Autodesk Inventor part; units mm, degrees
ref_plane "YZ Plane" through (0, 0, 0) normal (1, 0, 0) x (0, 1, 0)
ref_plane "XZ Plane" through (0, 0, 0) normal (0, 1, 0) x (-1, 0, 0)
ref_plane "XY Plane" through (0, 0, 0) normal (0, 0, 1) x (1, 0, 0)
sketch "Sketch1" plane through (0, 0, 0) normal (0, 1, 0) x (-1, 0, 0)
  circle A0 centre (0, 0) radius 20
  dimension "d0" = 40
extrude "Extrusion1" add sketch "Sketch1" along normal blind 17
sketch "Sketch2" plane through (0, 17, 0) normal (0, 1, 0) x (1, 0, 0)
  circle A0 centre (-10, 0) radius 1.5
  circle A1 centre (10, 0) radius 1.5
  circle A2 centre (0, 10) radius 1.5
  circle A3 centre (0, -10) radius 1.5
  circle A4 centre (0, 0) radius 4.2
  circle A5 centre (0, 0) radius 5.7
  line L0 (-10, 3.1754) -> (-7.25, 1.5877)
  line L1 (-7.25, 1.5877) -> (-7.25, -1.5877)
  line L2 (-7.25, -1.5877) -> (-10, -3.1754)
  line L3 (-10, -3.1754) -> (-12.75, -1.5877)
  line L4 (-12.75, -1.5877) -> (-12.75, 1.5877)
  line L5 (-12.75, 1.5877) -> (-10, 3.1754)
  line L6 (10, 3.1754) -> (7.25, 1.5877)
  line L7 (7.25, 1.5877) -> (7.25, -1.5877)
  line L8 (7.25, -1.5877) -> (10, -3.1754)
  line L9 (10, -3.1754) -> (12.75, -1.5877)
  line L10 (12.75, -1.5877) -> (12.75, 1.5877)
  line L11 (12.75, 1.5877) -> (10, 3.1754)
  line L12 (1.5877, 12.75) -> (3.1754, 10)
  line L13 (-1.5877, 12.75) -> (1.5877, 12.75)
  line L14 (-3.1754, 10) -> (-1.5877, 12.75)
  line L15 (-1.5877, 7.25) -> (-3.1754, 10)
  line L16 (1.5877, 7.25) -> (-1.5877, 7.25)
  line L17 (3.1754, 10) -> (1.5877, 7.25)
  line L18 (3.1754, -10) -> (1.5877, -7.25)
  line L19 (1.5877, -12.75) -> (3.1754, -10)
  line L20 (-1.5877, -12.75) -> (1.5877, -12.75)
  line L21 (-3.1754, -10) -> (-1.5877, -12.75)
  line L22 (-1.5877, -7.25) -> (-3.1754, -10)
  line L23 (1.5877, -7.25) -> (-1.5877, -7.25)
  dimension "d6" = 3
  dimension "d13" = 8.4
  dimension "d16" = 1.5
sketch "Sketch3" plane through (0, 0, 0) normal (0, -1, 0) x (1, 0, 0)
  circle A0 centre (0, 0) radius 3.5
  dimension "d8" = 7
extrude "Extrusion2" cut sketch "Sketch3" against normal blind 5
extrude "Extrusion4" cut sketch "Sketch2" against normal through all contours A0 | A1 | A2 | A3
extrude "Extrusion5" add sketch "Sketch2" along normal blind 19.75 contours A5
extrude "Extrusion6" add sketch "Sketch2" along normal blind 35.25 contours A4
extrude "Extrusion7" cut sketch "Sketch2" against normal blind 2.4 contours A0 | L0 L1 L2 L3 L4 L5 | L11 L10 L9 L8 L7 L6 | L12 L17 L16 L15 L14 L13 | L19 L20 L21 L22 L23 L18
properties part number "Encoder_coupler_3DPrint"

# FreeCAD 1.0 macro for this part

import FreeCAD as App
import Part
import Sketcher
Q = App.Units.Quantity

doc = App.newDocument("Part")
body = doc.addObject("PartDesign::Body", "Body")

# Sketch on XZ plane
sketch1 = doc.addObject("Sketcher::SketchObject", "Sketch")
body.addObject(sketch1)
sketch1.AttachmentSupport = (doc.XZ_Plane, [""])
sketch1.MapMode = "FlatFace"
sketch1.addGeometry(Part.Circle(App.Vector(0, 0, 0), App.Vector(0, 0, 1), 20), False)
sketch1.addConstraint([
    Sketcher.Constraint("Coincident", 0, 3, -1, 1),
    Sketcher.Constraint("Diameter", 0, Q("40 mm")),
])
pad1 = doc.addObject("PartDesign::Pad", "Pad")
body.addObject(pad1)
pad1.Profile = sketch1
pad1.Length = 17
pad1.Reversed = True

# Sketch on XZ plane
sketch2 = doc.addObject("Sketcher::SketchObject", "Sketch001")
body.addObject(sketch2)
sketch2.AttachmentSupport = (doc.XZ_Plane, [""])
sketch2.MapMode = "FlatFace"
sketch2.addGeometry(Part.Circle(App.Vector(0, 0, 0), App.Vector(0, 0, 1), 3.5), False)
sketch2.addConstraint([
    Sketcher.Constraint("Coincident", 0, 3, -1, 1),
    Sketcher.Constraint("Diameter", 0, Q("7 mm")),
])
pocket1 = doc.addObject("PartDesign::Pocket", "Pocket")
body.addObject(pocket1)
pocket1.Profile = sketch2
pocket1.Length = 5

# Sketch on XZ plane
sketch3 = doc.addObject("Sketcher::SketchObject", "Sketch002")
body.addObject(sketch3)
sketch3.AttachmentSupport = (doc.XZ_Plane, [""])
sketch3.MapMode = "FlatFace"
sketch3.AttachmentOffset = App.Placement(App.Vector(0, 0, -17), App.Rotation())
sketch3.addGeometry([
    Part.Circle(App.Vector(-10, 0, 0), App.Vector(0, 0, 1), 1.5),
    Part.Circle(App.Vector(10, 0, 0), App.Vector(0, 0, 1), 1.5),
    Part.Circle(App.Vector(0, -10, 0), App.Vector(0, 0, 1), 1.5),
    Part.Circle(App.Vector(0, 10, 0), App.Vector(0, 0, 1), 1.5),
], False)
sketch3.addConstraint([
    Sketcher.Constraint("Equal", 0, 1),
    Sketcher.Constraint("Equal", 1, 2),
    Sketcher.Constraint("Equal", 2, 3),
    Sketcher.Constraint("Symmetric", 0, 3, 1, 3, -1, 1),
    Sketcher.Constraint("Symmetric", 2, 3, 3, 3, -1, 1),
    Sketcher.Constraint("PointOnObject", 0, 3, -1),
    Sketcher.Constraint("PointOnObject", 2, 3, -2),
    Sketcher.Constraint("Diameter", 0, Q("3 mm")),
    Sketcher.Constraint("DistanceX", 0, 3, -1, 1, Q("10 mm")),
    Sketcher.Constraint("DistanceY", 2, 3, -1, 1, Q("10 mm")),
])
pocket2 = doc.addObject("PartDesign::Pocket", "Pocket001")
body.addObject(pocket2)
pocket2.Profile = sketch3
pocket2.Type = "ThroughAll"
pocket2.Reversed = True

# Sketch on XZ plane
sketch4 = doc.addObject("Sketcher::SketchObject", "Sketch003")
body.addObject(sketch4)
sketch4.AttachmentSupport = (doc.XZ_Plane, [""])
sketch4.MapMode = "FlatFace"
sketch4.AttachmentOffset = App.Placement(App.Vector(0, 0, -17), App.Rotation())
sketch4.addGeometry([
    Part.Circle(App.Vector(0, 0, 0), App.Vector(0, 0, 1), 5.7),
    Part.Circle(App.Vector(0, 0, 0), App.Vector(0, 0, 1), 4.2),
], False)
sketch4.addConstraint([
    Sketcher.Constraint("Coincident", 0, 3, -1, 1),
    Sketcher.Constraint("Coincident", 1, 3, -1, 1),
    Sketcher.Constraint("Diameter", 1, Q("8.4 mm")),
    Sketcher.Constraint("Diameter", 0, Q("11.4 mm")),
])
pad2 = doc.addObject("PartDesign::Pad", "Pad001")
body.addObject(pad2)
pad2.Profile = sketch4
pad2.Length = 19.75
pad2.Reversed = True

# Sketch on XZ plane
sketch5 = doc.addObject("Sketcher::SketchObject", "Sketch004")
body.addObject(sketch5)
sketch5.AttachmentSupport = (doc.XZ_Plane, [""])
sketch5.MapMode = "FlatFace"
sketch5.AttachmentOffset = App.Placement(App.Vector(0, 0, -17), App.Rotation())
sketch5.addGeometry(Part.Circle(App.Vector(0, 0, 0), App.Vector(0, 0, 1), 4.2), False)
sketch5.addConstraint([
    Sketcher.Constraint("Coincident", 0, 3, -1, 1),
    Sketcher.Constraint("Diameter", 0, Q("8.4 mm")),
])
pad3 = doc.addObject("PartDesign::Pad", "Pad002")
body.addObject(pad3)
pad3.Profile = sketch5
pad3.Length = 35.25
pad3.Reversed = True

# Sketch on XZ plane
sketch6 = doc.addObject("Sketcher::SketchObject", "Sketch005")
body.addObject(sketch6)
sketch6.AttachmentSupport = (doc.XZ_Plane, [""])
sketch6.MapMode = "FlatFace"
sketch6.AttachmentOffset = App.Placement(App.Vector(0, 0, -17), App.Rotation())
sketch6.addGeometry([
    Part.LineSegment(App.Vector(-7.2, -1.6, 0), App.Vector(-10, -3.2, 0)),  # 0
    Part.LineSegment(App.Vector(-10, -3.2, 0), App.Vector(-12.8, -1.6, 0)),  # 1
    Part.LineSegment(App.Vector(-12.8, -1.6, 0), App.Vector(-12.8, 1.6, 0)),  # 2
    Part.LineSegment(App.Vector(-12.8, 1.6, 0), App.Vector(-10, 3.2, 0)),  # 3
    Part.LineSegment(App.Vector(-10, 3.2, 0), App.Vector(-7.2, 1.6, 0)),  # 4
    Part.LineSegment(App.Vector(-7.2, 1.6, 0), App.Vector(-7.2, -1.6, 0)),  # 5
    Part.LineSegment(App.Vector(12.8, -1.6, 0), App.Vector(10, -3.2, 0)),  # 6
    Part.LineSegment(App.Vector(10, -3.2, 0), App.Vector(7.2, -1.6, 0)),  # 7
    Part.LineSegment(App.Vector(7.2, -1.6, 0), App.Vector(7.2, 1.6, 0)),  # 8
    Part.LineSegment(App.Vector(7.2, 1.6, 0), App.Vector(10, 3.2, 0)),  # 9
    Part.LineSegment(App.Vector(10, 3.2, 0), App.Vector(12.8, 1.6, 0)),  # 10
    Part.LineSegment(App.Vector(12.8, 1.6, 0), App.Vector(12.8, -1.6, 0)),  # 11
    Part.Circle(App.Vector(10, 0, 0), App.Vector(0, 0, 1), 1.5),  # 12
    Part.LineSegment(App.Vector(3.2, -10, 0), App.Vector(1.6, -12.8, 0)),  # 13
    Part.LineSegment(App.Vector(1.6, -12.8, 0), App.Vector(-1.6, -12.8, 0)),  # 14
    Part.LineSegment(App.Vector(-1.6, -12.8, 0), App.Vector(-3.2, -10, 0)),  # 15
    Part.LineSegment(App.Vector(-3.2, -10, 0), App.Vector(-1.6, -7.2, 0)),  # 16
    Part.LineSegment(App.Vector(-1.6, -7.2, 0), App.Vector(1.6, -7.2, 0)),  # 17
    Part.LineSegment(App.Vector(1.6, -7.2, 0), App.Vector(3.2, -10, 0)),  # 18
    Part.Circle(App.Vector(0, -10, 0), App.Vector(0, 0, 1), 1.5),  # 19
    Part.LineSegment(App.Vector(1.6, 12.8, 0), App.Vector(3.2, 10, 0)),  # 20
    Part.LineSegment(App.Vector(3.2, 10, 0), App.Vector(1.6, 7.2, 0)),  # 21
    Part.LineSegment(App.Vector(1.6, 7.2, 0), App.Vector(-1.6, 7.2, 0)),  # 22
    Part.LineSegment(App.Vector(-1.6, 7.2, 0), App.Vector(-3.2, 10, 0)),  # 23
    Part.LineSegment(App.Vector(-3.2, 10, 0), App.Vector(-1.6, 12.8, 0)),  # 24
    Part.LineSegment(App.Vector(-1.6, 12.8, 0), App.Vector(1.6, 12.8, 0)),  # 25
    Part.Circle(App.Vector(0, 10, 0), App.Vector(0, 0, 1), 1.5),  # 26
], False)
sketch6.addConstraint([
    Sketcher.Constraint("Coincident", 0, 2, 1, 1),
    Sketcher.Constraint("Coincident", 1, 2, 2, 1),
    Sketcher.Constraint("Coincident", 2, 2, 3, 1),
    Sketcher.Constraint("Coincident", 3, 2, 4, 1),
    Sketcher.Constraint("Coincident", 4, 2, 5, 1),
    Sketcher.Constraint("Coincident", 5, 2, 0, 1),
    Sketcher.Constraint("Coincident", 6, 2, 7, 1),
    Sketcher.Constraint("Coincident", 7, 2, 8, 1),
    Sketcher.Constraint("Coincident", 8, 2, 9, 1),
    Sketcher.Constraint("Coincident", 9, 2, 10, 1),
    Sketcher.Constraint("Coincident", 10, 2, 11, 1),
    Sketcher.Constraint("Coincident", 11, 2, 6, 1),
    Sketcher.Constraint("Coincident", 13, 2, 14, 1),
    Sketcher.Constraint("Coincident", 14, 2, 15, 1),
    Sketcher.Constraint("Coincident", 15, 2, 16, 1),
    Sketcher.Constraint("Coincident", 16, 2, 17, 1),
    Sketcher.Constraint("Coincident", 17, 2, 18, 1),
    Sketcher.Constraint("Coincident", 18, 2, 13, 1),
    Sketcher.Constraint("Coincident", 20, 2, 21, 1),
    Sketcher.Constraint("Coincident", 21, 2, 22, 1),
    Sketcher.Constraint("Coincident", 22, 2, 23, 1),
    Sketcher.Constraint("Coincident", 23, 2, 24, 1),
    Sketcher.Constraint("Coincident", 24, 2, 25, 1),
    Sketcher.Constraint("Coincident", 25, 2, 20, 1),
    Sketcher.Constraint("Vertical", 2),
    Sketcher.Constraint("Vertical", 5),
    Sketcher.Constraint("Vertical", 8),
    Sketcher.Constraint("Vertical", 11),
    Sketcher.Constraint("Horizontal", 14),
    Sketcher.Constraint("Horizontal", 17),
    Sketcher.Constraint("Horizontal", 22),
    Sketcher.Constraint("Horizontal", 25),
    Sketcher.Constraint("Equal", 12, 19),
    Sketcher.Constraint("Equal", 19, 26),
    Sketcher.Constraint("Symmetric", 19, 3, 26, 3, -1, 1),
    Sketcher.Constraint("Symmetric", 3, 2, 6, 2, -1, 1),
    Sketcher.Constraint("Symmetric", 4, 2, 7, 2, -1, 1),
    Sketcher.Constraint("Symmetric", 0, 2, 9, 2, -1, 1),
    Sketcher.Constraint("Symmetric", 1, 2, 10, 2, -1, 1),
    Sketcher.Constraint("Symmetric", 15, 2, 20, 2, -1, 1),
    Sketcher.Constraint("Symmetric", 16, 2, 21, 2, -1, 1),
    Sketcher.Constraint("Symmetric", 18, 2, 23, 2, -1, 1),
    Sketcher.Constraint("Symmetric", 13, 2, 24, 2, -1, 1),
    Sketcher.Constraint("Symmetric", 0, 2, 6, 2, -2),
    Sketcher.Constraint("Symmetric", 15, 2, 18, 2, -2),
    Sketcher.Constraint("PointOnObject", 12, 3, -1),
    Sketcher.Constraint("PointOnObject", 19, 3, -2),
    Sketcher.Constraint("Parallel", 0, 3),
    Sketcher.Constraint("Parallel", 1, 4),
    Sketcher.Constraint("Parallel", 3, 6),
    Sketcher.Constraint("Parallel", 6, 9),
    Sketcher.Constraint("Perpendicular", 10, 13),
    Sketcher.Constraint("Perpendicular", 9, 15),
    Sketcher.Constraint("Parallel", 13, 16),
    Sketcher.Constraint("Parallel", 15, 18),
    Sketcher.Constraint("Parallel", 18, 20),
    Sketcher.Constraint("Parallel", 20, 23),
    Sketcher.Constraint("Horizontal", 2, 2, 4, 2),
    Sketcher.Constraint("Horizontal", 1, 2, 5, 2),
    Sketcher.Constraint("Horizontal", 19, 3, 15, 2),
    Sketcher.Constraint("Vertical", 12, 3, 6, 2),
    Sketcher.Constraint("Vertical", 14, 2, 16, 2),
    Sketcher.Constraint("Equal", 25, 2),
    Sketcher.Constraint("Equal", 10, 13),
    Sketcher.Constraint("Diameter", 12, Q("3 mm")),
    Sketcher.Constraint("Angle", 0, Q("-150.0002 deg")),
    Sketcher.Constraint("DistanceX", -1, 1, 12, 3, Q("10 mm")),
    Sketcher.Constraint("DistanceY", 19, 3, -1, 1, Q("10 mm")),
    Sketcher.Constraint("DistanceX", 2, 2, 4, 2, Q("5.5 mm")),
    Sketcher.Constraint("DistanceX", 14, 2, 14, 1, Q("3.1754 mm")),
])
pocket3 = doc.addObject("PartDesign::Pocket", "Pocket002")
body.addObject(pocket3)
pocket3.Profile = sketch6
pocket3.Length = 2.4
pocket3.Reversed = True

doc.recompute()
